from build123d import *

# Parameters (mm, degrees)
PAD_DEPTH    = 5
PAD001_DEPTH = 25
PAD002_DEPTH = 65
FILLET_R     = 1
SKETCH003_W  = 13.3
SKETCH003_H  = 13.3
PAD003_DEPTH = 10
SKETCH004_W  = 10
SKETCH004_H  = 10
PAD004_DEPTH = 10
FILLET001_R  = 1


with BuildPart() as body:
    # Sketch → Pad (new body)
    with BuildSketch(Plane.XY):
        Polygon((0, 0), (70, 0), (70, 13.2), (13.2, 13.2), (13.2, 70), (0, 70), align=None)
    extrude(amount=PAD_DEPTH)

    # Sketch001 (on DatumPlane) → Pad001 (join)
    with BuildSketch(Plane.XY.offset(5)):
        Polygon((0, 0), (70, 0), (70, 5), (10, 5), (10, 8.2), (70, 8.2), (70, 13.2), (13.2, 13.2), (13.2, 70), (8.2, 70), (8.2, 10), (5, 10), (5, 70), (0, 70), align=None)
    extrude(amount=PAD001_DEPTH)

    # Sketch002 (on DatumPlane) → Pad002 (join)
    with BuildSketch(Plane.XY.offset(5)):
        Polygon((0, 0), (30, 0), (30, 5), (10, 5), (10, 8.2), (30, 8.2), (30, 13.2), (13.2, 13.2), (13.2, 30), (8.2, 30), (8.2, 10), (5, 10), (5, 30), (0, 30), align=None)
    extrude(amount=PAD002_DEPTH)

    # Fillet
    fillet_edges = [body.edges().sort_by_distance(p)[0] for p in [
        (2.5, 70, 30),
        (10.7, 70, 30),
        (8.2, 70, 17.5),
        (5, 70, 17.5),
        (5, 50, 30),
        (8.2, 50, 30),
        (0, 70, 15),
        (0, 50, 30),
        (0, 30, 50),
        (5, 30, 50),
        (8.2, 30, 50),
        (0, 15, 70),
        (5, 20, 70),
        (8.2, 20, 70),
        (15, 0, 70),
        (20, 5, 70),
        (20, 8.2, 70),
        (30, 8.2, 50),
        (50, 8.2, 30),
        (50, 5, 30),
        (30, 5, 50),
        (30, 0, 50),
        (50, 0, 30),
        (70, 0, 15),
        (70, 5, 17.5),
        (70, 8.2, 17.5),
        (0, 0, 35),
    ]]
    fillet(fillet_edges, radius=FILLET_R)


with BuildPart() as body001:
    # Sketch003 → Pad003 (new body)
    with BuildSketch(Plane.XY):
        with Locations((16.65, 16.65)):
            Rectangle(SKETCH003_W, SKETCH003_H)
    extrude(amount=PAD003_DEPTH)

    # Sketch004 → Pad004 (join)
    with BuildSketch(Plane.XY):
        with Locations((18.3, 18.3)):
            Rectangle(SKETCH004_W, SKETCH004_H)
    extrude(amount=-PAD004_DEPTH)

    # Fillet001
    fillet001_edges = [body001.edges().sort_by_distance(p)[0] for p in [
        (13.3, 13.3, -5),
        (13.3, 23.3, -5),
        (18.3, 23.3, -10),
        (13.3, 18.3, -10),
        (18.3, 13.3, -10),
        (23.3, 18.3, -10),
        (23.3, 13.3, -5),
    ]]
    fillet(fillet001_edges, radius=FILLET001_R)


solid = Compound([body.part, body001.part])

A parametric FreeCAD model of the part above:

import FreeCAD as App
import Part
import Sketcher

V = App.Vector
Q = App.Units.Quantity


def edges_at(feature, points):
    """Names of the edges that pass closest to the given points."""
    edges = feature.Shape.Edges
    near = lambda p: min(range(len(edges)), key=lambda i: edges[i].distToShape(Part.Vertex(*p))[0])
    return sorted({f"Edge{near(p) + 1}" for p in points})

doc = App.newDocument("Part")
params = doc.addObject("Spreadsheet::Sheet", "Params")
for row, (alias, value) in enumerate([
    ("sketch1_width", "70 mm"),
    ("sketch1_width2", "56.8 mm"),
    ("pad1_length", "5 mm"),
    ("sketch2_width", "70 mm"),
    ("sketch2_width2", "60 mm"),
    ("sketch2_width3", "5 mm"),
    ("sketch2_width4", "56.8 mm"),
    ("pad2_length", "25 mm"),
    ("sketch3_width", "30 mm"),
    ("sketch3_width2", "20 mm"),
    ("sketch3_width3", "5 mm"),
    ("sketch3_width4", "16.8 mm"),
    ("pad3_length", "65 mm"),
    ("fillet_radius", "1 mm"),
    ("sketch4_width", "13.3 mm"),
    ("pad4_length", "10 mm"),
    ("sketch5_width", "10 mm"),
    ("pad5_length", "10 mm"),
    ("fillet2_radius", "1 mm"),
], start=1):
    params.set(f"A{row}", alias)
    params.set(f"B{row}", "=" + value)
    params.setAlias(f"B{row}", alias)

body = doc.addObject("PartDesign::Body", "Body")

sketch1 = doc.addObject("Sketcher::SketchObject", "Sketch")
body.addObject(sketch1)
sketch1.AttachmentSupport = (doc.XY_Plane, [""])
sketch1.MapMode = "FlatFace"
sketch1.addGeometry(Part.LineSegment(V(0, 0, 0), V(70, 0, 0)), False)
sketch1.addGeometry(Part.LineSegment(V(70, 0, 0), V(70, 13.2, 0)), False)
sketch1.addGeometry(Part.LineSegment(V(70, 13.2, 0), V(13.2, 13.2, 0)), False)
sketch1.addGeometry(Part.LineSegment(V(13.2, 13.2, 0), V(13.2, 70, 0)), False)
sketch1.addGeometry(Part.LineSegment(V(13.2, 70, 0), V(0, 70, 0)), False)
sketch1.addGeometry(Part.LineSegment(V(0, 70, 0), V(0, 0, 0)), False)
sketch1.addConstraint(Sketcher.Constraint("Coincident", 0, 2, 1, 1))
sketch1.addConstraint(Sketcher.Constraint("Coincident", 1, 2, 2, 1))
sketch1.addConstraint(Sketcher.Constraint("Coincident", 2, 2, 3, 1))
sketch1.addConstraint(Sketcher.Constraint("Coincident", 3, 2, 4, 1))
sketch1.addConstraint(Sketcher.Constraint("Coincident", 4, 2, 5, 1))
sketch1.addConstraint(Sketcher.Constraint("Coincident", 5, 2, 0, 1))
sketch1.addConstraint(Sketcher.Constraint("Horizontal", 0))
sketch1.addConstraint(Sketcher.Constraint("Vertical", 1))
sketch1.addConstraint(Sketcher.Constraint("Horizontal", 2))
sketch1.addConstraint(Sketcher.Constraint("Vertical", 3))
sketch1.addConstraint(Sketcher.Constraint("Horizontal", 4))
sketch1.addConstraint(Sketcher.Constraint("Vertical", 5))
sketch1.addConstraint(Sketcher.Constraint("Coincident", 5, 2, -1, 1))
sketch1.addConstraint(Sketcher.Constraint("Equal", 4, 1))
sketch1.addConstraint(Sketcher.Constraint("Equal", 2, 3))
sketch1.addConstraint(Sketcher.Constraint("DistanceX", 0, 1, 0, 2, Q("70 mm")))
sketch1.addConstraint(Sketcher.Constraint("DistanceX", 2, 2, 2, 1, Q("56.8 mm")))
sketch1.setExpression("Constraints[15]", "Params.sketch1_width")
sketch1.setExpression("Constraints[16]", "Params.sketch1_width2")
pad1 = doc.addObject("PartDesign::Pad", "Pad")
body.addObject(pad1)
pad1.Profile = sketch1
pad1.setExpression("Length", "Params.pad1_length")

sketch2 = doc.addObject("Sketcher::SketchObject", "Sketch001")
body.addObject(sketch2)
sketch2.AttachmentSupport = (doc.XY_Plane, [""])
sketch2.MapMode = "FlatFace"
sketch2.AttachmentOffset = App.Placement(V(0, 0, 5), App.Rotation())
sketch2.addGeometry(Part.LineSegment(V(0, 0, 0), V(70, 0, 0)), False)
sketch2.addGeometry(Part.LineSegment(V(70, 0, 0), V(70, 5, 0)), False)
sketch2.addGeometry(Part.LineSegment(V(70, 5, 0), V(10, 5, 0)), False)
sketch2.addGeometry(Part.LineSegment(V(10, 5, 0), V(10, 8.2, 0)), False)
sketch2.addGeometry(Part.LineSegment(V(10, 8.2, 0), V(70, 8.2, 0)), False)
sketch2.addGeometry(Part.LineSegment(V(70, 8.2, 0), V(70, 13.2, 0)), False)
sketch2.addGeometry(Part.LineSegment(V(70, 13.2, 0), V(13.2, 13.2, 0)), False)
sketch2.addGeometry(Part.LineSegment(V(13.2, 13.2, 0), V(13.2, 70, 0)), False)
sketch2.addGeometry(Part.LineSegment(V(13.2, 70, 0), V(8.2, 70, 0)), False)
sketch2.addGeometry(Part.LineSegment(V(8.2, 70, 0), V(8.2, 10, 0)), False)
sketch2.addGeometry(Part.LineSegment(V(8.2, 10, 0), V(5, 10, 0)), False)
sketch2.addGeometry(Part.LineSegment(V(5, 10, 0), V(5, 70, 0)), False)
sketch2.addGeometry(Part.LineSegment(V(5, 70, 0), V(0, 70, 0)), False)
sketch2.addGeometry(Part.LineSegment(V(0, 70, 0), V(0, 0, 0)), False)
sketch2.addConstraint(Sketcher.Constraint("Coincident", 0, 2, 1, 1))
sketch2.addConstraint(Sketcher.Constraint("Coincident", 1, 2, 2, 1))
sketch2.addConstraint(Sketcher.Constraint("Coincident", 2, 2, 3, 1))
sketch2.addConstraint(Sketcher.Constraint("Coincident", 3, 2, 4, 1))
sketch2.addConstraint(Sketcher.Constraint("Coincident", 4, 2, 5, 1))
sketch2.addConstraint(Sketcher.Constraint("Coincident", 5, 2, 6, 1))
sketch2.addConstraint(Sketcher.Constraint("Coincident", 6, 2, 7, 1))
sketch2.addConstraint(Sketcher.Constraint("Coincident", 7, 2, 8, 1))
sketch2.addConstraint(Sketcher.Constraint("Coincident", 8, 2, 9, 1))
sketch2.addConstraint(Sketcher.Constraint("Coincident", 9, 2, 10, 1))
sketch2.addConstraint(Sketcher.Constraint("Coincident", 10, 2, 11, 1))
sketch2.addConstraint(Sketcher.Constraint("Coincident", 11, 2, 12, 1))
sketch2.addConstraint(Sketcher.Constraint("Coincident", 12, 2, 13, 1))
sketch2.addConstraint(Sketcher.Constraint("Coincident", 13, 2, 0, 1))
sketch2.addConstraint(Sketcher.Constraint("Horizontal", 0))
sketch2.addConstraint(Sketcher.Constraint("Vertical", 1))
sketch2.addConstraint(Sketcher.Constraint("Horizontal", 2))
sketch2.addConstraint(Sketcher.Constraint("Vertical", 3))
sketch2.addConstraint(Sketcher.Constraint("Horizontal", 4))
sketch2.addConstraint(Sketcher.Constraint("Vertical", 5))
sketch2.addConstraint(Sketcher.Constraint("Horizontal", 6))
sketch2.addConstraint(Sketcher.Constraint("Vertical", 7))
sketch2.addConstraint(Sketcher.Constraint("Horizontal", 8))
sketch2.addConstraint(Sketcher.Constraint("Vertical", 9))
sketch2.addConstraint(Sketcher.Constraint("Horizontal", 10))
sketch2.addConstraint(Sketcher.Constraint("Vertical", 11))
sketch2.addConstraint(Sketcher.Constraint("Horizontal", 12))
sketch2.addConstraint(Sketcher.Constraint("Vertical", 13))
sketch2.addConstraint(Sketcher.Constraint("Coincident", 13, 2, -1, 1))
sketch2.addConstraint(Sketcher.Constraint("Horizontal", 8, 2, 11, 2))
sketch2.addConstraint(Sketcher.Constraint("Vertical", 1, 2, 4, 2))
sketch2.addConstraint(Sketcher.Constraint("Equal", 8, 12))
sketch2.addConstraint(Sketcher.Constraint("Equal", 12, 1))
sketch2.addConstraint(Sketcher.Constraint("Equal", 10, 3))
sketch2.addConstraint(Sketcher.Constraint("Equal", 1, 5))
sketch2.addConstraint(Sketcher.Constraint("Equal", 6, 7))
sketch2.addConstraint(Sketcher.Constraint("Equal", 4, 9))
sketch2.addConstraint(Sketcher.Constraint("DistanceX", 0, 1, 0, 2, Q("70 mm")))
sketch2.addConstraint(Sketcher.Constraint("DistanceX", 2, 2, 2, 1, Q("60 mm")))
sketch2.addConstraint(Sketcher.Constraint("DistanceX", 8, 2, 8, 1, Q("5 mm")))
sketch2.addConstraint(Sketcher.Constraint("DistanceX", 6, 2, 6, 1, Q("56.8 mm")))
sketch2.setExpression("Constraints[37]", "Params.sketch2_width")
sketch2.setExpression("Constraints[38]", "Params.sketch2_width2")
sketch2.setExpression("Constraints[39]", "Params.sketch2_width3")
sketch2.setExpression("Constraints[40]", "Params.sketch2_width4")
pad2 = doc.addObject("PartDesign::Pad", "Pad001")
body.addObject(pad2)
pad2.Profile = sketch2
pad2.setExpression("Length", "Params.pad2_length")

sketch3 = doc.addObject("Sketcher::SketchObject", "Sketch002")
body.addObject(sketch3)
sketch3.AttachmentSupport = (doc.XY_Plane, [""])
sketch3.MapMode = "FlatFace"
sketch3.AttachmentOffset = App.Placement(V(0, 0, 5), App.Rotation())
sketch3.addGeometry(Part.LineSegment(V(0, 0, 0), V(30, 0, 0)), False)
sketch3.addGeometry(Part.LineSegment(V(30, 0, 0), V(30, 5, 0)), False)
sketch3.addGeometry(Part.LineSegment(V(30, 5, 0), V(10, 5, 0)), False)
sketch3.addGeometry(Part.LineSegment(V(10, 5, 0), V(10, 8.2, 0)), False)
sketch3.addGeometry(Part.LineSegment(V(10, 8.2, 0), V(30, 8.2, 0)), False)
sketch3.addGeometry(Part.LineSegment(V(30, 8.2, 0), V(30, 13.2, 0)), False)
sketch3.addGeometry(Part.LineSegment(V(30, 13.2, 0), V(13.2, 13.2, 0)), False)
sketch3.addGeometry(Part.LineSegment(V(13.2, 13.2, 0), V(13.2, 30, 0)), False)
sketch3.addGeometry(Part.LineSegment(V(13.2, 30, 0), V(8.2, 30, 0)), False)
sketch3.addGeometry(Part.LineSegment(V(8.2, 30, 0), V(8.2, 10, 0)), False)
sketch3.addGeometry(Part.LineSegment(V(8.2, 10, 0), V(5, 10, 0)), False)
sketch3.addGeometry(Part.LineSegment(V(5, 10, 0), V(5, 30, 0)), False)
sketch3.addGeometry(Part.LineSegment(V(5, 30, 0), V(0, 30, 0)), False)
sketch3.addGeometry(Part.LineSegment(V(0, 30, 0), V(0, 0, 0)), False)
sketch3.addConstraint(Sketcher.Constraint("Coincident", 0, 2, 1, 1))
sketch3.addConstraint(Sketcher.Constraint("Coincident", 1, 2, 2, 1))
sketch3.addConstraint(Sketcher.Constraint("Coincident", 2, 2, 3, 1))
sketch3.addConstraint(Sketcher.Constraint("Coincident", 3, 2, 4, 1))
sketch3.addConstraint(Sketcher.Constraint("Coincident", 4, 2, 5, 1))
sketch3.addConstraint(Sketcher.Constraint("Coincident", 5, 2, 6, 1))
sketch3.addConstraint(Sketcher.Constraint("Coincident", 6, 2, 7, 1))
sketch3.addConstraint(Sketcher.Constraint("Coincident", 7, 2, 8, 1))
sketch3.addConstraint(Sketcher.Constraint("Coincident", 8, 2, 9, 1))
sketch3.addConstraint(Sketcher.Constraint("Coincident", 9, 2, 10, 1))
sketch3.addConstraint(Sketcher.Constraint("Coincident", 10, 2, 11, 1))
sketch3.addConstraint(Sketcher.Constraint("Coincident", 11, 2, 12, 1))
sketch3.addConstraint(Sketcher.Constraint("Coincident", 12, 2, 13, 1))
sketch3.addConstraint(Sketcher.Constraint("Coincident", 13, 2, 0, 1))
sketch3.addConstraint(Sketcher.Constraint("Horizontal", 0))
sketch3.addConstraint(Sketcher.Constraint("Vertical", 1))
sketch3.addConstraint(Sketcher.Constraint("Horizontal", 2))
sketch3.addConstraint(Sketcher.Constraint("Vertical", 3))
sketch3.addConstraint(Sketcher.Constraint("Horizontal", 4))
sketch3.addConstraint(Sketcher.Constraint("Vertical", 5))
sketch3.addConstraint(Sketcher.Constraint("Horizontal", 6))
sketch3.addConstraint(Sketcher.Constraint("Vertical", 7))
sketch3.addConstraint(Sketcher.Constraint("Horizontal", 8))
sketch3.addConstraint(Sketcher.Constraint("Vertical", 9))
sketch3.addConstraint(Sketcher.Constraint("Horizontal", 10))
sketch3.addConstraint(Sketcher.Constraint("Vertical", 11))
sketch3.addConstraint(Sketcher.Constraint("Horizontal", 12))
sketch3.addConstraint(Sketcher.Constraint("Vertical", 13))
sketch3.addConstraint(Sketcher.Constraint("Coincident", 13, 2, -1, 1))
sketch3.addConstraint(Sketcher.Constraint("Horizontal", 8, 2, 11, 2))
sketch3.addConstraint(Sketcher.Constraint("Vertical", 1, 2, 4, 2))
sketch3.addConstraint(Sketcher.Constraint("Equal", 8, 12))
sketch3.addConstraint(Sketcher.Constraint("Equal", 12, 1))
sketch3.addConstraint(Sketcher.Constraint("Equal", 10, 3))
sketch3.addConstraint(Sketcher.Constraint("Equal", 1, 5))
sketch3.addConstraint(Sketcher.Constraint("Equal", 6, 7))
sketch3.addConstraint(Sketcher.Constraint("Equal", 4, 9))
sketch3.addConstraint(Sketcher.Constraint("DistanceX", 0, 1, 0, 2, Q("30 mm")))
sketch3.addConstraint(Sketcher.Constraint("DistanceX", 2, 2, 2, 1, Q("20 mm")))
sketch3.addConstraint(Sketcher.Constraint("DistanceX", 8, 2, 8, 1, Q("5 mm")))
sketch3.addConstraint(Sketcher.Constraint("DistanceX", 6, 2, 6, 1, Q("16.8 mm")))
sketch3.setExpression("Constraints[37]", "Params.sketch3_width")
sketch3.setExpression("Constraints[38]", "Params.sketch3_width2")
sketch3.setExpression("Constraints[39]", "Params.sketch3_width3")
sketch3.setExpression("Constraints[40]", "Params.sketch3_width4")
pad3 = doc.addObject("PartDesign::Pad", "Pad002")
body.addObject(pad3)
pad3.Profile = sketch3
pad3.setExpression("Length", "Params.pad3_length")
doc.recompute()

fillet = doc.addObject("PartDesign::Fillet", "Fillet")
body.addObject(fillet)
fillet.Base = (pad3, edges_at(pad3, [
    (2.5, 70, 30),
    (10.7, 70, 30),
    (8.2, 70, 17.5),
    (5, 70, 17.5),
    (5, 50, 30),
    (8.2, 50, 30),
    (0, 70, 15),
    (0, 50, 30),
    (0, 30, 50),
    (5, 30, 50),
    (8.2, 30, 50),
    (0, 15, 70),
    (5, 20, 70),
    (8.2, 20, 70),
    (15, 0, 70),
    (20, 5, 70),
    (20, 8.2, 70),
    (30, 8.2, 50),
    (50, 8.2, 30),
    (50, 5, 30),
    (30, 5, 50),
    (30, 0, 50),
    (50, 0, 30),
    (70, 0, 15),
    (70, 5, 17.5),
    (70, 8.2, 17.5),
    (0, 0, 35),
]))
fillet.setExpression("Radius", "Params.fillet_radius")
body2 = doc.addObject("PartDesign::Body", "Body001")

sketch4 = doc.addObject("Sketcher::SketchObject", "Sketch003")
body2.addObject(sketch4)
sketch4.AttachmentSupport = (doc.getObject("XY_Plane001"), [""])
sketch4.MapMode = "FlatFace"
sketch4.addGeometry(Part.LineSegment(V(10, 23.3, 0), V(10, 10, 0)), False)
sketch4.addGeometry(Part.LineSegment(V(10, 10, 0), V(23.3, 10, 0)), False)
sketch4.addGeometry(Part.LineSegment(V(23.3, 10, 0), V(23.3, 23.3, 0)), False)
sketch4.addGeometry(Part.LineSegment(V(23.3, 23.3, 0), V(10, 23.3, 0)), False)
sketch4.addConstraint(Sketcher.Constraint("Coincident", 0, 2, 1, 1))
sketch4.addConstraint(Sketcher.Constraint("Coincident", 1, 2, 2, 1))
sketch4.addConstraint(Sketcher.Constraint("Coincident", 2, 2, 3, 1))
sketch4.addConstraint(Sketcher.Constraint("Coincident", 3, 2, 0, 1))
sketch4.addConstraint(Sketcher.Constraint("Vertical", 0))
sketch4.addConstraint(Sketcher.Constraint("Horizontal", 1))
sketch4.addConstraint(Sketcher.Constraint("Vertical", 2))
sketch4.addConstraint(Sketcher.Constraint("Horizontal", 3))
sketch4.addConstraint(Sketcher.Constraint("Equal", 3, 0))
sketch4.addConstraint(Sketcher.Constraint("DistanceX", 1, 1, 1, 2, Q("13.3 mm")))
sketch4.addConstraint(Sketcher.Constraint("DistanceX", -1, 1, 0, 2, Q("10 mm")))
sketch4.addConstraint(Sketcher.Constraint("DistanceY", -1, 1, 0, 2, Q("10 mm")))
sketch4.setExpression("Constraints[9]", "Params.sketch4_width")
pad4 = doc.addObject("PartDesign::Pad", "Pad003")
body2.addObject(pad4)
pad4.Profile = sketch4
pad4.setExpression("Length", "Params.pad4_length")

sketch5 = doc.addObject("Sketcher::SketchObject", "Sketch004")
body2.addObject(sketch5)
sketch5.AttachmentSupport = (doc.getObject("XY_Plane001"), [""])
sketch5.MapMode = "FlatFace"
sketch5.addGeometry(Part.LineSegment(V(13.3, 23.3, 0), V(13.3, 13.3, 0)), False)
sketch5.addGeometry(Part.LineSegment(V(13.3, 13.3, 0), V(23.3, 13.3, 0)), False)
sketch5.addGeometry(Part.LineSegment(V(23.3, 13.3, 0), V(23.3, 23.3, 0)), False)
sketch5.addGeometry(Part.LineSegment(V(23.3, 23.3, 0), V(13.3, 23.3, 0)), False)
sketch5.addConstraint(Sketcher.Constraint("Coincident", 0, 2, 1, 1))
sketch5.addConstraint(Sketcher.Constraint("Coincident", 1, 2, 2, 1))
sketch5.addConstraint(Sketcher.Constraint("Coincident", 2, 2, 3, 1))
sketch5.addConstraint(Sketcher.Constraint("Coincident", 3, 2, 0, 1))
sketch5.addConstraint(Sketcher.Constraint("Vertical", 0))
sketch5.addConstraint(Sketcher.Constraint("Horizontal", 1))
sketch5.addConstraint(Sketcher.Constraint("Vertical", 2))
sketch5.addConstraint(Sketcher.Constraint("Horizontal", 3))
sketch5.addConstraint(Sketcher.Constraint("Equal", 3, 0))
sketch5.addConstraint(Sketcher.Constraint("DistanceX", 1, 1, 1, 2, Q("10 mm")))
sketch5.addConstraint(Sketcher.Constraint("DistanceX", -1, 1, 0, 2, Q("13.3 mm")))
sketch5.addConstraint(Sketcher.Constraint("DistanceY", -1, 1, 0, 2, Q("13.3 mm")))
sketch5.setExpression("Constraints[9]", "Params.sketch5_width")
pad5 = doc.addObject("PartDesign::Pad", "Pad004")
body2.addObject(pad5)
pad5.Profile = sketch5
pad5.setExpression("Length", "Params.pad5_length")
pad5.Reversed = True
doc.recompute()

fillet2 = doc.addObject("PartDesign::Fillet", "Fillet001")
body2.addObject(fillet2)
fillet2.Base = (pad5, edges_at(pad5, [
    (13.3, 13.3, -5),
    (13.3, 23.3, -5),
    (18.3, 23.3, -10),
    (13.3, 18.3, -10),
    (18.3, 13.3, -10),
    (23.3, 18.3, -10),
    (23.3, 13.3, -5),
]))
fillet2.setExpression("Radius", "Params.fillet2_radius")

doc.recompute()
